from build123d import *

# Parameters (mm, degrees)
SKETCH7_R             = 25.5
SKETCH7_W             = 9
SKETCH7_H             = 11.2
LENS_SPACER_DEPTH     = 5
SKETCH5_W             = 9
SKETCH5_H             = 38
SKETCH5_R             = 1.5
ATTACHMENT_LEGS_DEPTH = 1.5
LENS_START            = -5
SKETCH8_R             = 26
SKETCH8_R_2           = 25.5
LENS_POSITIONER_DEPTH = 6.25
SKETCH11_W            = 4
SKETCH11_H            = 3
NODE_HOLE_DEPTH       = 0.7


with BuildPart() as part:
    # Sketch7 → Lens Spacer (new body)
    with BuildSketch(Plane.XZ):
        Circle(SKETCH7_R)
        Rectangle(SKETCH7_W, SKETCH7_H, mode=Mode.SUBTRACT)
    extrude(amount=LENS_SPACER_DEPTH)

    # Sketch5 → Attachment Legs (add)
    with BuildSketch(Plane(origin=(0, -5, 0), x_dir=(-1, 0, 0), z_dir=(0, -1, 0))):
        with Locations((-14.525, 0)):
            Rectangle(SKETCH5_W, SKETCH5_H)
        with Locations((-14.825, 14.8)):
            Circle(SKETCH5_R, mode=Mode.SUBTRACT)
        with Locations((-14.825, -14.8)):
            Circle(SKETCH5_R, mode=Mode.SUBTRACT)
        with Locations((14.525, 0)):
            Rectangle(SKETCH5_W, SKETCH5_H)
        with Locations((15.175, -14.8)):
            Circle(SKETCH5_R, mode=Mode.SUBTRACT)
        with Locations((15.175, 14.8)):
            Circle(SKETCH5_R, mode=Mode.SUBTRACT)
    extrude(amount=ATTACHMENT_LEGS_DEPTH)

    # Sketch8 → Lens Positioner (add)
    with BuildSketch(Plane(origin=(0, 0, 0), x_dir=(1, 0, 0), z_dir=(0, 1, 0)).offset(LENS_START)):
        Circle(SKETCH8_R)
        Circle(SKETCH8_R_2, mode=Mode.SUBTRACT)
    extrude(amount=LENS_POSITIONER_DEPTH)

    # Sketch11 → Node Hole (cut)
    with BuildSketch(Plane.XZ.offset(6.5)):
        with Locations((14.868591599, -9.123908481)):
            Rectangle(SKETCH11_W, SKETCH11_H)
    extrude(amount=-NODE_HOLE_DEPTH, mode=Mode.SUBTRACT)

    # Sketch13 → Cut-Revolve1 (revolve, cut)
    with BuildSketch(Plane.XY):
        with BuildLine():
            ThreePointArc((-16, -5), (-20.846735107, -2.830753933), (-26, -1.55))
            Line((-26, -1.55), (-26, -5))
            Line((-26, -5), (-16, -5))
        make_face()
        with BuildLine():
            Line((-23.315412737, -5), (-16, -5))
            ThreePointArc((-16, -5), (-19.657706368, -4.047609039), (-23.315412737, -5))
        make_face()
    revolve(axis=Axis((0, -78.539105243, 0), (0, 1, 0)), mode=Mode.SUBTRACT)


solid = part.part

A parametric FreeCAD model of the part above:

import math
import FreeCAD as App
import Part
import Sketcher

V = App.Vector

doc = App.newDocument("Part")
body = doc.addObject("PartDesign::Body", "Body")

sketch1 = doc.addObject("Sketcher::SketchObject", "Sketch")
body.addObject(sketch1)
sketch1.AttachmentSupport = (doc.XZ_Plane, [""])
sketch1.MapMode = "FlatFace"
sketch1.addGeometry([
    Part.Circle(V(0, 0, 0), V(0, 0, 1), 26),
    Part.LineSegment(V(4, -6, 0), V(-4, -6, 0)),
    Part.LineSegment(V(-4, -6, 0), V(-4, 6, 0)),
    Part.LineSegment(V(-4, 6, 0), V(4, 6, 0)),
    Part.LineSegment(V(4, 6, 0), V(4, -6, 0)),
], False)
sketch1.addConstraint([
    Sketcher.Constraint("Coincident", 1, 2, 2, 1),
    Sketcher.Constraint("Coincident", 2, 2, 3, 1),
    Sketcher.Constraint("Coincident", 3, 2, 4, 1),
    Sketcher.Constraint("Coincident", 4, 2, 1, 1),
    Sketcher.Constraint("Horizontal", 1),
    Sketcher.Constraint("Vertical", 2),
    Sketcher.Constraint("Horizontal", 3),
    Sketcher.Constraint("Vertical", 4),
    Sketcher.Constraint("Coincident", 0, 3, -1, 1),
    Sketcher.Constraint("Symmetric", 1, 2, 3, 2, -1, 1),
    Sketcher.Constraint("Diameter", 0, 51.0),
    Sketcher.Constraint("DistanceX", 1, 2, 1, 1, 9.0),
    Sketcher.Constraint("DistanceY", 2, 1, 2, 2, 11.2),
])
pad1 = doc.addObject("PartDesign::Pad", "Pad")
body.addObject(pad1)
pad1.Profile = sketch1
pad1.Length = 5

sketch2 = doc.addObject("Sketcher::SketchObject", "Sketch001")
body.addObject(sketch2)
sketch2.AttachmentSupport = (doc.XZ_Plane, [""])
sketch2.MapMode = "FlatFace"
sketch2.AttachmentOffset = App.Placement(V(0, 0, 5), App.Rotation())
sketch2.addGeometry([
    Part.LineSegment(V(19, -19, 0), V(19, 19, 0)),
    Part.LineSegment(V(19, 19, 0), V(10, 19, 0)),
    Part.LineSegment(V(10, 19, 0), V(10, -19, 0)),
    Part.LineSegment(V(10, -19, 0), V(19, -19, 0)),
    Part.Circle(V(14.8, 14.8, 0), V(0, 0, 1), 1.5),
    Part.Circle(V(14.8, -14.8, 0), V(0, 0, 1), 1.5),
    Part.LineSegment(V(-10, -19, 0), V(-10, 19, 0)),
    Part.LineSegment(V(-10, 19, 0), V(-19, 19, 0)),
    Part.LineSegment(V(-19, 19, 0), V(-19, -19, 0)),
    Part.LineSegment(V(-19, -19, 0), V(-10, -19, 0)),
    Part.Circle(V(-15.2, 14.8, 0), V(0, 0, 1), 1.5),
    Part.Circle(V(-15.2, -14.8, 0), V(0, 0, 1), 1.5),
], False)
sketch2.addConstraint([
    Sketcher.Constraint("Coincident", 0, 2, 1, 1),
    Sketcher.Constraint("Coincident", 1, 2, 2, 1),
    Sketcher.Constraint("Coincident", 2, 2, 3, 1),
    Sketcher.Constraint("Coincident", 3, 2, 0, 1),
    Sketcher.Constraint("Coincident", 6, 2, 7, 1),
    Sketcher.Constraint("Coincident", 7, 2, 8, 1),
    Sketcher.Constraint("Coincident", 8, 2, 9, 1),
    Sketcher.Constraint("Coincident", 9, 2, 6, 1),
    Sketcher.Constraint("Vertical", 0),
    Sketcher.Constraint("Horizontal", 1),
    Sketcher.Constraint("Vertical", 2),
    Sketcher.Constraint("Horizontal", 3),
    Sketcher.Constraint("Vertical", 6),
    Sketcher.Constraint("Horizontal", 7),
    Sketcher.Constraint("Vertical", 8),
    Sketcher.Constraint("Horizontal", 9),
    Sketcher.Constraint("Equal", 4, 5),
    Sketcher.Constraint("Equal", 5, 10),
    Sketcher.Constraint("Equal", 10, 11),
    Sketcher.Constraint("Symmetric", 2, 2, 6, 2, -1, 1),
    Sketcher.Constraint("Symmetric", 0, 2, 8, 2, -1, 1),
    Sketcher.Constraint("Symmetric", 4, 3, 5, 3, -1),
    Sketcher.Constraint("Symmetric", 10, 3, 11, 3, -1),
    Sketcher.Constraint("Horizontal", 4, 3, 10, 3),
    Sketcher.Constraint("Horizontal", 1, 2, 6, 2),
    Sketcher.Constraint("Diameter", 4, 3.0),
    Sketcher.Constraint("DistanceX", 1, 2, 1, 1, 9.0),
    Sketcher.Constraint("DistanceY", 0, 1, 0, 2, 38.0),
    Sketcher.Constraint("DistanceX", 10, 3, 4, 3, 30.0),
    Sketcher.Constraint("DistanceY", -1, 1, 4, 3, 14.8),
    Sketcher.Constraint("DistanceX", 4, 3, 0, 2, 4.2),
    Sketcher.Constraint("DistanceX", 10, 3, 6, 2, 5.15),
])
pad2 = doc.addObject("PartDesign::Pad", "Pad001")
body.addObject(pad2)
pad2.Profile = sketch2
pad2.Length = 1.5

sketch3 = doc.addObject("Sketcher::SketchObject", "Sketch002")
body.addObject(sketch3)
sketch3.AttachmentSupport = (doc.XZ_Plane, [""])
sketch3.MapMode = "FlatFace"
sketch3.AttachmentOffset = App.Placement(V(0, 0, 5), App.Rotation())
sketch3.addGeometry([
    Part.Circle(V(0, 0, 0), V(0, 0, 1), 26),
    Part.Circle(V(0, 0, 0), V(0, 0, 1), 26),
], False)
sketch3.addConstraint([
    Sketcher.Constraint("Coincident", 0, 3, -1, 1),
    Sketcher.Constraint("Coincident", 1, 3, -1, 1),
    Sketcher.Constraint("Diameter", 0, 52.0),
    Sketcher.Constraint("Diameter", 1, 51.0),
])
pad3 = doc.addObject("PartDesign::Pad", "Pad002")
body.addObject(pad3)
pad3.Profile = sketch3
pad3.Length = 6.25
pad3.Reversed = True

sketch4 = doc.addObject("Sketcher::SketchObject", "Sketch003")
body.addObject(sketch4)
sketch4.AttachmentSupport = (doc.XZ_Plane, [""])
sketch4.MapMode = "FlatFace"
sketch4.AttachmentOffset = App.Placement(V(0, 0, 6.5), App.Rotation())
sketch4.addGeometry([
    Part.LineSegment(V(12.9, -7.6, 0), V(12.9, -10.6, 0)),
    Part.LineSegment(V(12.9, -10.6, 0), V(16.9, -10.6, 0)),
    Part.LineSegment(V(16.9, -10.6, 0), V(16.9, -7.6, 0)),
    Part.LineSegment(V(16.9, -7.6, 0), V(12.9, -7.6, 0)),
], False)
sketch4.addConstraint([
    Sketcher.Constraint("Coincident", 0, 2, 1, 1),
    Sketcher.Constraint("Coincident", 1, 2, 2, 1),
    Sketcher.Constraint("Coincident", 2, 2, 3, 1),
    Sketcher.Constraint("Coincident", 3, 2, 0, 1),
    Sketcher.Constraint("Vertical", 0),
    Sketcher.Constraint("Horizontal", 1),
    Sketcher.Constraint("Vertical", 2),
    Sketcher.Constraint("Horizontal", 3),
    Sketcher.Constraint("DistanceX", 1, 1, 1, 2, 4.0),
    Sketcher.Constraint("DistanceY", 0, 2, 0, 1, 3.0),
    Sketcher.Constraint("DistanceX", -1, 1, 0, 2, 12.868592),
    Sketcher.Constraint("DistanceY", 0, 2, -1, 1, 10.623908),
])
pocket1 = doc.addObject("PartDesign::Pocket", "Pocket")
body.addObject(pocket1)
pocket1.Profile = sketch4
pocket1.Length = 0.7

sketch5 = doc.addObject("Sketcher::SketchObject", "Sketch004")
body.addObject(sketch5)
sketch5.AttachmentSupport = (doc.XY_Plane, [""])
sketch5.MapMode = "FlatFace"
sketch5.addGeometry([
    Part.LineSegment(V(-26, -5, 0), V(-16, -5, 0)),
    Part.ArcOfCircle(Part.Circle(V(-30.6, -31.2, 0), V(0, 0, 1), 30), math.radians(61), math.radians(81)),
    Part.LineSegment(V(-26, -1.6, 0), V(-26, -5, 0)),
], False)
sketch5.addConstraint([
    Sketcher.Constraint("Coincident", 0, 2, 1, 1),
    Sketcher.Constraint("Coincident", 1, 2, 2, 1),
    Sketcher.Constraint("Coincident", 2, 2, 0, 1),
    Sketcher.Constraint("Horizontal", 0),
    Sketcher.Constraint("Vertical", 2),
    Sketcher.Constraint("Radius", 1, 30.0),
    Sketcher.Constraint("DistanceX", 0, 1, 0, 2, 10.0),
    Sketcher.Constraint("DistanceX", 0, 2, -1, 1, 16.0),
    Sketcher.Constraint("DistanceY", 0, 2, -1, 1, 5.0),
    Sketcher.Constraint("DistanceY", 2, 2, 2, 1, 3.45),
])
groove = doc.addObject("PartDesign::Groove", "Groove")
body.addObject(groove)
groove.Profile = sketch5
groove.ReferenceAxis = (sketch5, ["V_Axis"])
groove.Angle = 360

doc.recompute()
